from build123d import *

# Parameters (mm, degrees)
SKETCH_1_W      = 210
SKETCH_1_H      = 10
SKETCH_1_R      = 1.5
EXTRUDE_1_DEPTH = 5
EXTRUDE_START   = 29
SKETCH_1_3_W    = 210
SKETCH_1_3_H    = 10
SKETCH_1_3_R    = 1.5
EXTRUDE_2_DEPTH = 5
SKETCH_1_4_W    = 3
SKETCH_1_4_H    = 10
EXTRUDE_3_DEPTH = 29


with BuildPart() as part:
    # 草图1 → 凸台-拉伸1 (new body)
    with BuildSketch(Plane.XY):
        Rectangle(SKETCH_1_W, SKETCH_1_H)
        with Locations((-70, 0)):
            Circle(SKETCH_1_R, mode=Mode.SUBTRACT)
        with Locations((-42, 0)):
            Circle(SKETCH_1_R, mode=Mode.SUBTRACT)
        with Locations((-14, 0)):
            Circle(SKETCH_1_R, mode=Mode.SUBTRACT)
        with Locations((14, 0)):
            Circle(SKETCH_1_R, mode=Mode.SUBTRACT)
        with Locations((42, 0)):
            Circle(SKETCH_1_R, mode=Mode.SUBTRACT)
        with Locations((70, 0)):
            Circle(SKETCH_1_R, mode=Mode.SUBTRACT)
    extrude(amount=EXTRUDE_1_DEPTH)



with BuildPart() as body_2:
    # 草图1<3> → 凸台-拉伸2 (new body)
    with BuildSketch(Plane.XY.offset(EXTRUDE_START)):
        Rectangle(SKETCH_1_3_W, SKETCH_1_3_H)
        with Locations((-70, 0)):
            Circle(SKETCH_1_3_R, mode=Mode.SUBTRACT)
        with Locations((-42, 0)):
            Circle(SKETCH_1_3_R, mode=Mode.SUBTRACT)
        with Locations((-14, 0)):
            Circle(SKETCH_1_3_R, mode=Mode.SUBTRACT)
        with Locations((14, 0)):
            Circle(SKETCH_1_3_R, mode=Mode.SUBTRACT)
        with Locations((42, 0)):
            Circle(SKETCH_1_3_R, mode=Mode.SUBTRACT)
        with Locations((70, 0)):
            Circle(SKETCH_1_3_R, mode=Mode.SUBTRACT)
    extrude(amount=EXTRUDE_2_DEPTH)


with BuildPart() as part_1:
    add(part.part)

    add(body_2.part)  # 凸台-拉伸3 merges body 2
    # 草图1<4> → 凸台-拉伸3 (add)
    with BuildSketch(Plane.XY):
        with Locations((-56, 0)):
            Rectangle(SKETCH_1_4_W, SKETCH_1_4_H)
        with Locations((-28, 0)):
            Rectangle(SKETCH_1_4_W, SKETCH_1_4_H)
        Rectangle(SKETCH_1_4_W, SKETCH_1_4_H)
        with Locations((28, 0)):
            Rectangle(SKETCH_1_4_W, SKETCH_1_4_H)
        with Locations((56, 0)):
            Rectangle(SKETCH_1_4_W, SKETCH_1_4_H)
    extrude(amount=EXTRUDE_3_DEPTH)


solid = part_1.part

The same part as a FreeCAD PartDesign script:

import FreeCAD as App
import Part
import Sketcher

V = App.Vector


def add_polygon(sketch, points):
    """Adds a closed chain of lines whose ends are joined by coincident constraints."""
    first, n = sketch.GeometryCount, len(points)
    for a, b in zip(points, points[1:] + points[:1]):
        sketch.addGeometry(Part.LineSegment(App.Vector(*a, 0), App.Vector(*b, 0)), False)
    for i in range(n):
        sketch.addConstraint(Sketcher.Constraint("Coincident", first + i, 2, first + (i + 1) % n, 1))

doc = App.newDocument("Part")
body = doc.addObject("PartDesign::Body", "Body")

# Sketch on XY plane
sketch1 = body.newObject("Sketcher::SketchObject", "Sketch")
sketch1.AttachmentSupport = (doc.getObject("XY_Plane"), [""])
sketch1.MapMode = "FlatFace"
add_polygon(sketch1, [(-105, 5), (-105, -5), (105, -5), (105, 5)])  # lines 0-3
sketch1.addGeometry(Part.Circle(V(-70, 0, 0), V(0, 0, 1), 1.5), False)  # 4
sketch1.addGeometry(Part.Circle(V(-42, 0, 0), V(0, 0, 1), 1.5), False)  # 5
sketch1.addGeometry(Part.Circle(V(-14, 0, 0), V(0, 0, 1), 1.5), False)  # 6
sketch1.addGeometry(Part.Circle(V(14, 0, 0), V(0, 0, 1), 1.5), False)  # 7
sketch1.addGeometry(Part.Circle(V(42, 0, 0), V(0, 0, 1), 1.5), False)  # 8
sketch1.addGeometry(Part.Circle(V(70, 0, 0), V(0, 0, 1), 1.5), False)  # 9
sketch1.addConstraint(Sketcher.Constraint("Vertical", 0))
sketch1.addConstraint(Sketcher.Constraint("Horizontal", 1))
sketch1.addConstraint(Sketcher.Constraint("Vertical", 2))
sketch1.addConstraint(Sketcher.Constraint("Horizontal", 3))
sketch1.addConstraint(Sketcher.Constraint("Equal", 4, 5))
sketch1.addConstraint(Sketcher.Constraint("Equal", 5, 6))
sketch1.addConstraint(Sketcher.Constraint("Equal", 6, 7))
sketch1.addConstraint(Sketcher.Constraint("Equal", 7, 8))
sketch1.addConstraint(Sketcher.Constraint("Equal", 8, 9))
sketch1.addConstraint(Sketcher.Constraint("Symmetric", 6, 3, 7, 3, -1, 1))
sketch1.addConstraint(Sketcher.Constraint("Symmetric", 5, 3, 8, 3, -1, 1))
sketch1.addConstraint(Sketcher.Constraint("Symmetric", 4, 3, 9, 3, -1, 1))
sketch1.addConstraint(Sketcher.Constraint("Symmetric", 0, 2, 2, 2, -1, 1))
sketch1.addConstraint(Sketcher.Constraint("PointOnObject", 4, 3, -1))
sketch1.addConstraint(Sketcher.Constraint("PointOnObject", 5, 3, -1))
sketch1.addConstraint(Sketcher.Constraint("PointOnObject", 6, 3, -1))
sketch1.addConstraint(Sketcher.Constraint("Diameter", 4, 3.0))
sketch1.addConstraint(Sketcher.Constraint("DistanceX", 1, 1, 1, 2, 210.0))
sketch1.addConstraint(Sketcher.Constraint("DistanceY", 0, 2, 0, 1, 10.0))
sketch1.addConstraint(Sketcher.Constraint("DistanceX", 4, 3, -1, 1, 70.0))
sketch1.addConstraint(Sketcher.Constraint("DistanceX", 5, 3, -1, 1, 42.0))
sketch1.addConstraint(Sketcher.Constraint("DistanceX", 6, 3, -1, 1, 14.0))
pad1 = body.newObject("PartDesign::Pad", "Pad")
pad1.Profile = sketch1
pad1.Length = 5
body2 = doc.addObject("PartDesign::Body", "Body001")

# Sketch on XY plane
sketch2 = body2.newObject("Sketcher::SketchObject", "Sketch001")
sketch2.AttachmentSupport = (doc.getObject("XY_Plane001"), [""])
sketch2.MapMode = "FlatFace"
sketch2.AttachmentOffset = App.Placement(V(0, 0, 29), App.Rotation())
add_polygon(sketch2, [(-105, 5), (-105, -5), (105, -5), (105, 5)])  # lines 0-3
sketch2.addGeometry(Part.Circle(V(-70, 0, 0), V(0, 0, 1), 1.5), False)  # 4
sketch2.addGeometry(Part.Circle(V(-42, 0, 0), V(0, 0, 1), 1.5), False)  # 5
sketch2.addGeometry(Part.Circle(V(-14, 0, 0), V(0, 0, 1), 1.5), False)  # 6
sketch2.addGeometry(Part.Circle(V(14, 0, 0), V(0, 0, 1), 1.5), False)  # 7
sketch2.addGeometry(Part.Circle(V(42, 0, 0), V(0, 0, 1), 1.5), False)  # 8
sketch2.addGeometry(Part.Circle(V(70, 0, 0), V(0, 0, 1), 1.5), False)  # 9
sketch2.addConstraint(Sketcher.Constraint("Vertical", 0))
sketch2.addConstraint(Sketcher.Constraint("Horizontal", 1))
sketch2.addConstraint(Sketcher.Constraint("Vertical", 2))
sketch2.addConstraint(Sketcher.Constraint("Horizontal", 3))
sketch2.addConstraint(Sketcher.Constraint("Equal", 4, 5))
sketch2.addConstraint(Sketcher.Constraint("Equal", 5, 6))
sketch2.addConstraint(Sketcher.Constraint("Equal", 6, 7))
sketch2.addConstraint(Sketcher.Constraint("Equal", 7, 8))
sketch2.addConstraint(Sketcher.Constraint("Equal", 8, 9))
sketch2.addConstraint(Sketcher.Constraint("Symmetric", 6, 3, 7, 3, -1, 1))
sketch2.addConstraint(Sketcher.Constraint("Symmetric", 5, 3, 8, 3, -1, 1))
sketch2.addConstraint(Sketcher.Constraint("Symmetric", 4, 3, 9, 3, -1, 1))
sketch2.addConstraint(Sketcher.Constraint("Symmetric", 0, 2, 2, 2, -1, 1))
sketch2.addConstraint(Sketcher.Constraint("PointOnObject", 4, 3, -1))
sketch2.addConstraint(Sketcher.Constraint("PointOnObject", 5, 3, -1))
sketch2.addConstraint(Sketcher.Constraint("PointOnObject", 6, 3, -1))
sketch2.addConstraint(Sketcher.Constraint("Diameter", 4, 3.0))
sketch2.addConstraint(Sketcher.Constraint("DistanceX", 1, 1, 1, 2, 210.0))
sketch2.addConstraint(Sketcher.Constraint("DistanceY", 0, 2, 0, 1, 10.0))
sketch2.addConstraint(Sketcher.Constraint("DistanceX", 4, 3, -1, 1, 70.0))
sketch2.addConstraint(Sketcher.Constraint("DistanceX", 5, 3, -1, 1, 42.0))
sketch2.addConstraint(Sketcher.Constraint("DistanceX", 6, 3, -1, 1, 14.0))
pad2 = body2.newObject("PartDesign::Pad", "Pad001")
pad2.Profile = sketch2
pad2.Length = 5
body.AllowCompound = True
doc.recompute()

boolean = body.newObject("PartDesign::Boolean", "Boolean")
boolean.Type = "Fuse"
boolean.addObjects([body2])

# Sketch on XY plane
sketch3 = body.newObject("Sketcher::SketchObject", "Sketch002")
sketch3.AttachmentSupport = (doc.getObject("XY_Plane"), [""])
sketch3.MapMode = "FlatFace"
add_polygon(sketch3, [(-57.5, 5), (-57.5, -5), (-54.5, -5), (-54.5, 5)])  # lines 0-3
add_polygon(sketch3, [(-29.5, 5), (-29.5, -5), (-26.5, -5), (-26.5, 5)])  # lines 4-7
add_polygon(sketch3, [(-1.5, 5), (-1.5, -5), (1.5, -5), (1.5, 5)])  # lines 8-11
add_polygon(sketch3, [(26.5, 5), (26.5, -5), (29.5, -5), (29.5, 5)])  # lines 12-15
add_polygon(sketch3, [(54.5, 5), (54.5, -5), (57.5, -5), (57.5, 5)])  # lines 16-19
sketch3.addConstraint(Sketcher.Constraint("Vertical", 0))
sketch3.addConstraint(Sketcher.Constraint("Horizontal", 1))
sketch3.addConstraint(Sketcher.Constraint("Vertical", 2))
sketch3.addConstraint(Sketcher.Constraint("Horizontal", 3))
sketch3.addConstraint(Sketcher.Constraint("Vertical", 4))
sketch3.addConstraint(Sketcher.Constraint("Horizontal", 5))
sketch3.addConstraint(Sketcher.Constraint("Vertical", 6))
sketch3.addConstraint(Sketcher.Constraint("Horizontal", 7))
sketch3.addConstraint(Sketcher.Constraint("Vertical", 8))
sketch3.addConstraint(Sketcher.Constraint("Horizontal", 9))
sketch3.addConstraint(Sketcher.Constraint("Vertical", 10))
sketch3.addConstraint(Sketcher.Constraint("Horizontal", 11))
sketch3.addConstraint(Sketcher.Constraint("Vertical", 12))
sketch3.addConstraint(Sketcher.Constraint("Horizontal", 13))
sketch3.addConstraint(Sketcher.Constraint("Vertical", 14))
sketch3.addConstraint(Sketcher.Constraint("Horizontal", 15))
sketch3.addConstraint(Sketcher.Constraint("Vertical", 16))
sketch3.addConstraint(Sketcher.Constraint("Horizontal", 17))
sketch3.addConstraint(Sketcher.Constraint("Vertical", 18))
sketch3.addConstraint(Sketcher.Constraint("Horizontal", 19))
sketch3.addConstraint(Sketcher.Constraint("Symmetric", 8, 2, 10, 2, -1, 1))
sketch3.addConstraint(Sketcher.Constraint("Symmetric", 6, 2, 12, 2, -1, 1))
sketch3.addConstraint(Sketcher.Constraint("Symmetric", 4, 2, 14, 2, -1, 1))
sketch3.addConstraint(Sketcher.Constraint("Symmetric", 2, 2, 16, 2, -1, 1))
sketch3.addConstraint(Sketcher.Constraint("Symmetric", 0, 2, 18, 2, -1, 1))
sketch3.addConstraint(Sketcher.Constraint("Horizontal", 1, 2, 4, 2))
sketch3.addConstraint(Sketcher.Constraint("Horizontal", 3, 2, 6, 2))
sketch3.addConstraint(Sketcher.Constraint("Horizontal", 5, 2, 8, 2))
sketch3.addConstraint(Sketcher.Constraint("Horizontal", 7, 2, 10, 2))
sketch3.addConstraint(Sketcher.Constraint("Equal", 3, 5))
sketch3.addConstraint(Sketcher.Constraint("Equal", 7, 9))
sketch3.addConstraint(Sketcher.Constraint("DistanceX", 1, 1, 1, 2, 3.0))
sketch3.addConstraint(Sketcher.Constraint("DistanceY", 0, 2, 0, 1, 10.0))
sketch3.addConstraint(Sketcher.Constraint("DistanceX", 1, 2, 4, 2, 25.0))
sketch3.addConstraint(Sketcher.Constraint("DistanceX", 5, 2, 8, 2, 25.0))
pad3 = body.newObject("PartDesign::Pad", "Pad002")
pad3.Profile = sketch3
pad3.Length = 29

doc.recompute()
